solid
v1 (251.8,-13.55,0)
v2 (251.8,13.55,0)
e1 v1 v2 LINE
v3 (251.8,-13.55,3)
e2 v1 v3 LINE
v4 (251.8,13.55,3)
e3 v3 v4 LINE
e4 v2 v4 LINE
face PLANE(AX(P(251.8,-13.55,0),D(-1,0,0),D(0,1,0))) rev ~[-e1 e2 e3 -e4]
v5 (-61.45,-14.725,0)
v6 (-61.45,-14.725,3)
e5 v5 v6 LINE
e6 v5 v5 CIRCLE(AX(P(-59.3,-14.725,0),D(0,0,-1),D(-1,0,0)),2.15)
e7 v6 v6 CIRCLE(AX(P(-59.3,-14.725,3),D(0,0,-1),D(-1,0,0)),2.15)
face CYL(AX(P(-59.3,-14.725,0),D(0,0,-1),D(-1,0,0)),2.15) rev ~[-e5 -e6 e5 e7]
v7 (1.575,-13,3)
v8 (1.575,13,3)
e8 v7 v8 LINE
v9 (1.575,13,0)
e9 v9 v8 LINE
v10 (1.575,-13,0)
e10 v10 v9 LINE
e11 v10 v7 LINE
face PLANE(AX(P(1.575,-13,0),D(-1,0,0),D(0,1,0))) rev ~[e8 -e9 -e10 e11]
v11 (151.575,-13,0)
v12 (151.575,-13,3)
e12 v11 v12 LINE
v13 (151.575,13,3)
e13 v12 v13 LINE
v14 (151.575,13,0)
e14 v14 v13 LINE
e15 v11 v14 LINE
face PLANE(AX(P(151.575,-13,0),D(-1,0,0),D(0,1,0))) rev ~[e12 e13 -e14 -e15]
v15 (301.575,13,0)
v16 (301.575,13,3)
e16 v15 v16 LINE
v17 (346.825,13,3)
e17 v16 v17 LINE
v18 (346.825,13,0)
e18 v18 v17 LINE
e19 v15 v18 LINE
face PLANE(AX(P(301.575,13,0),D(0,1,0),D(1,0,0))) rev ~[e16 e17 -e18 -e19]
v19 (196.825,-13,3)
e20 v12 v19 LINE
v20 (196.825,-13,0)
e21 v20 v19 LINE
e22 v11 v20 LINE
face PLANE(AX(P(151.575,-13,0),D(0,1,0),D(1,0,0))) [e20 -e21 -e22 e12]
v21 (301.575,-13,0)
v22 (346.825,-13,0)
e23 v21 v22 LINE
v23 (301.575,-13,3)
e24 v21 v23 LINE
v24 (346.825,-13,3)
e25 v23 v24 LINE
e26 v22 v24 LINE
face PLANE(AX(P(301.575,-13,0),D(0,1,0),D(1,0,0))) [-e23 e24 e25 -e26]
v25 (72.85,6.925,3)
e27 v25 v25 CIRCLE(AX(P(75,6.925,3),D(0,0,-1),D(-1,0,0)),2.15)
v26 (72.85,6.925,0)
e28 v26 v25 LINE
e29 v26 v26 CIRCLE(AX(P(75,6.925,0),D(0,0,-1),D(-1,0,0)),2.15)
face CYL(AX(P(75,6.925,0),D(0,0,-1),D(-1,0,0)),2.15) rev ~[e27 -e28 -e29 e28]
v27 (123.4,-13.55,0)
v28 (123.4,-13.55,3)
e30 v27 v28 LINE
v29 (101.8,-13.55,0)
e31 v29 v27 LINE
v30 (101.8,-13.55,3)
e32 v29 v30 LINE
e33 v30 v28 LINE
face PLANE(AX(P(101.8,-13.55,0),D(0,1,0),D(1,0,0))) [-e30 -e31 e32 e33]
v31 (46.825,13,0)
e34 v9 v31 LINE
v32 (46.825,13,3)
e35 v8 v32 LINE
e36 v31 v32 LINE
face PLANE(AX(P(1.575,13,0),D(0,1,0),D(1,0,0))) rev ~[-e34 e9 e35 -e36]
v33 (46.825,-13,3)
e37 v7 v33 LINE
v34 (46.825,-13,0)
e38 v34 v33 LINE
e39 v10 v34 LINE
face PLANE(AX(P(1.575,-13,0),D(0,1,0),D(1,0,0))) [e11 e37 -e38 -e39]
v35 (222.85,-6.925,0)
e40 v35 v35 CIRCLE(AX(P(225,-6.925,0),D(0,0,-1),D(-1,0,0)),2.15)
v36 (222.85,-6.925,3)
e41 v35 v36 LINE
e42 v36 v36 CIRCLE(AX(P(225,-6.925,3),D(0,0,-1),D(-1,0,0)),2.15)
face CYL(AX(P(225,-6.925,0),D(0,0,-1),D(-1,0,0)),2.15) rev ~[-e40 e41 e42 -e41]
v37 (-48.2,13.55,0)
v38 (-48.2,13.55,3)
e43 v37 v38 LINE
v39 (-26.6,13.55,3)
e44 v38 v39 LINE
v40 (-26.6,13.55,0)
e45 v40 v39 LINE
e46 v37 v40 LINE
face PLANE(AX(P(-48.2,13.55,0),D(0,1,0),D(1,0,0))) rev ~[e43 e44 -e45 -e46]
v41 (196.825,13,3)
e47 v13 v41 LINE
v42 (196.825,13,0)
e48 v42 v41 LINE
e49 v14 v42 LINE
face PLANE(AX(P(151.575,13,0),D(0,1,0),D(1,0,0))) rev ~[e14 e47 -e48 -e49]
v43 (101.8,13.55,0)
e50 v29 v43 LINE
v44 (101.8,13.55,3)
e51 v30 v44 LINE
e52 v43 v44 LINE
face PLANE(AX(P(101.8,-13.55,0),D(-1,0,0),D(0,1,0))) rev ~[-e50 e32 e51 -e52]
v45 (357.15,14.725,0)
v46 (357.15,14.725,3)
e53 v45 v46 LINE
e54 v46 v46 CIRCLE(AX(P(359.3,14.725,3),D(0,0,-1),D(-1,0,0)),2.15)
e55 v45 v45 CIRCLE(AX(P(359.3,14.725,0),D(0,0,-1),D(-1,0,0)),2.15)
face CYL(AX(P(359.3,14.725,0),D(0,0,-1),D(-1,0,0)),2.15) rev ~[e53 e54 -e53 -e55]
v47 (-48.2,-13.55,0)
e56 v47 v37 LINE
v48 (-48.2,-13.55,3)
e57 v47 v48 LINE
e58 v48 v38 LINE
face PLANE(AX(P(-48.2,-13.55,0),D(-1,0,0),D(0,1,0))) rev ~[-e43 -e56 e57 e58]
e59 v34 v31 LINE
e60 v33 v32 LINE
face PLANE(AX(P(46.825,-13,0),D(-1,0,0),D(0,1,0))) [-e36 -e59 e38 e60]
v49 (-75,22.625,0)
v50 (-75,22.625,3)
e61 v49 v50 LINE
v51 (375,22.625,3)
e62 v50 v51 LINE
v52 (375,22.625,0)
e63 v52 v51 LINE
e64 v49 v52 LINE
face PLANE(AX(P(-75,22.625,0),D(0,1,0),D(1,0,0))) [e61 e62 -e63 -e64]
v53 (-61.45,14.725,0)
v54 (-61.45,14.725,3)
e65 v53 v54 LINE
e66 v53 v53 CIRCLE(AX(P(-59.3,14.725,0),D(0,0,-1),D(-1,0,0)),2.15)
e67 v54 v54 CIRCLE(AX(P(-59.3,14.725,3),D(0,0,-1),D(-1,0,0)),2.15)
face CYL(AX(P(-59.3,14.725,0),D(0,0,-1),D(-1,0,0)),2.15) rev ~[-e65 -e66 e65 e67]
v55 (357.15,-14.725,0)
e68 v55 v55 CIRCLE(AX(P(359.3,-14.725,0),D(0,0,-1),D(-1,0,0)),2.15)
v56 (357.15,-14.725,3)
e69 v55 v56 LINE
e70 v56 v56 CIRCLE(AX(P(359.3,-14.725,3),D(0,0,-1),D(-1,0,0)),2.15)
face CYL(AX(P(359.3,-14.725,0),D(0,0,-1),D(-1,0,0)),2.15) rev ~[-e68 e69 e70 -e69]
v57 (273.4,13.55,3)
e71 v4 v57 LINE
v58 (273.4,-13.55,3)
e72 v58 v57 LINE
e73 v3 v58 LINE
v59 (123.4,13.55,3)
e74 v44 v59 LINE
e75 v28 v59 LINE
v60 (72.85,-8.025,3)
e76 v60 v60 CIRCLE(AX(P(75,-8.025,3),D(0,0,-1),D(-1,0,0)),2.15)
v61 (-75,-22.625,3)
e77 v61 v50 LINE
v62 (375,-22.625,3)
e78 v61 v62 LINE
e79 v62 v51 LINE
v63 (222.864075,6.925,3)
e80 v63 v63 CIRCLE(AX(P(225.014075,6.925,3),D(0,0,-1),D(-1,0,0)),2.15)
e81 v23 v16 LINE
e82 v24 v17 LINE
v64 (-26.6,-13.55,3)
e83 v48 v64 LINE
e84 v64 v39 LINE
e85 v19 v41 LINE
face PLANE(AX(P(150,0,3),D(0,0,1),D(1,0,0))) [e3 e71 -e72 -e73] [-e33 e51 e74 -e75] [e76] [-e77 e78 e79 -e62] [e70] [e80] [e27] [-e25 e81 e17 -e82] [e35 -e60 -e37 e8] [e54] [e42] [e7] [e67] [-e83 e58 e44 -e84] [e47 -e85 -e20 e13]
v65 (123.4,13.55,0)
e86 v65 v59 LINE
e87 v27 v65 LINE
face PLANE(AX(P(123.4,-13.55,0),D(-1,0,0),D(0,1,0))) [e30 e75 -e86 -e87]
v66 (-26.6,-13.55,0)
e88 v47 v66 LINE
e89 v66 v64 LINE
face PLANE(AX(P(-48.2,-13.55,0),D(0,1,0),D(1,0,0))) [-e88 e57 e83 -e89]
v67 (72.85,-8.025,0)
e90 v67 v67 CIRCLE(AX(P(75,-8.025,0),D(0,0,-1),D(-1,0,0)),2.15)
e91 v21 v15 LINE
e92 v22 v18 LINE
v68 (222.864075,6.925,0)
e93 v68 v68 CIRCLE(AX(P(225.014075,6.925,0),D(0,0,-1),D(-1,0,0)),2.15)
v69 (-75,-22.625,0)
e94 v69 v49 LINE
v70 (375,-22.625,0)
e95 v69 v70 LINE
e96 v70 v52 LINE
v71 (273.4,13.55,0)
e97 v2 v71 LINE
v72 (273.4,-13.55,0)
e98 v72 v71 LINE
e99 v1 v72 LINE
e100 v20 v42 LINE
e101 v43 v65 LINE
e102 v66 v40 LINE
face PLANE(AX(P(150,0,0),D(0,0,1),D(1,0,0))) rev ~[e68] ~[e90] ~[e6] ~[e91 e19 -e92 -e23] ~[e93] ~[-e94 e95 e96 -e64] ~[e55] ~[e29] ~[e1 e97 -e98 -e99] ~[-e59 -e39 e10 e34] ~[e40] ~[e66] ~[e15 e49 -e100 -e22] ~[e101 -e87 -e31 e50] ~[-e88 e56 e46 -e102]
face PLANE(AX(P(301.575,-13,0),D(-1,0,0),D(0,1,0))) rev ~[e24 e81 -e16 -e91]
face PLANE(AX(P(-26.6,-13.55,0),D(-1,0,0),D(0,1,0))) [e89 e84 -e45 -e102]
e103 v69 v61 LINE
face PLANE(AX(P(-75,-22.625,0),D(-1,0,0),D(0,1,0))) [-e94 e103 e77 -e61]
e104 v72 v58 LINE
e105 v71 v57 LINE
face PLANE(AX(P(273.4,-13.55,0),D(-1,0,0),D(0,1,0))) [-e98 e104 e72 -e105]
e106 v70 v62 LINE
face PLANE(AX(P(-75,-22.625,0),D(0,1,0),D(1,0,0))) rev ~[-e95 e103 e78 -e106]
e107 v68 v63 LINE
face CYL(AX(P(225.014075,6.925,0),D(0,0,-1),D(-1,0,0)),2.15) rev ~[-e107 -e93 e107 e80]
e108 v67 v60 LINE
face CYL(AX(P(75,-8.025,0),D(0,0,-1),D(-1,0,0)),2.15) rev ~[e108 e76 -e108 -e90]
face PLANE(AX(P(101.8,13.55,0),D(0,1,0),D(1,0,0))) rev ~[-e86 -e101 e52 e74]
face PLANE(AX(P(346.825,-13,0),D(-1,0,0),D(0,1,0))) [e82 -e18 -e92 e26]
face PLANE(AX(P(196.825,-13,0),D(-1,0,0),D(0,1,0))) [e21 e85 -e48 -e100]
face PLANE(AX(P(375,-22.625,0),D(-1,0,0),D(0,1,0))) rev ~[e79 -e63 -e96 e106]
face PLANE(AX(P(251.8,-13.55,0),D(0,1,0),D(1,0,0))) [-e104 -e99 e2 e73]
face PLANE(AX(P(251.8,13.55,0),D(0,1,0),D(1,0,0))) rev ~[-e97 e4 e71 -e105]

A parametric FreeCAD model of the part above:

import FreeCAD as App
import Part
import Sketcher

V = App.Vector

doc = App.newDocument("Part")
body = doc.addObject("PartDesign::Body", "Body")

# Sketch on XY plane
sketch1 = body.newObject("Sketcher::SketchObject", "Sketch")
sketch1.AttachmentSupport = (doc.getObject("XY_Plane"), [""])
sketch1.MapMode = "FlatFace"
sketch1.addGeometry([
    Part.LineSegment(V(-75, 23, 0), V(-75, -23, 0)),
    Part.LineSegment(V(-75, -23, 0), V(375, -23, 0)),
    Part.LineSegment(V(375, -23, 0), V(375, 23, 0)),
    Part.LineSegment(V(375, 23, 0), V(-75, 23, 0)),
], False)
sketch1.addConstraint([
    Sketcher.Constraint("Coincident", 0, 2, 1, 1),
    Sketcher.Constraint("Coincident", 1, 2, 2, 1),
    Sketcher.Constraint("Coincident", 2, 2, 3, 1),
    Sketcher.Constraint("Coincident", 3, 2, 0, 1),
    Sketcher.Constraint("Vertical", 0),
    Sketcher.Constraint("Horizontal", 1),
    Sketcher.Constraint("Vertical", 2),
    Sketcher.Constraint("Horizontal", 3),
    Sketcher.Constraint("DistanceX", 1, 1, 1, 2, 450.0),
    Sketcher.Constraint("DistanceX", 0, 2, -1, 1, 75.0),
    Sketcher.Constraint("DistanceY", 0, 2, 0, 1, 45.25),
    Sketcher.Constraint("DistanceY", 0, 2, -1, 1, 22.625),
])
pad1 = body.newObject("PartDesign::Pad", "Pad")
pad1.Profile = sketch1
pad1.Length = 3

# Sketch on XY plane
sketch2 = body.newObject("Sketcher::SketchObject", "Sketch001")
sketch2.AttachmentSupport = (doc.getObject("XY_Plane"), [""])
sketch2.MapMode = "FlatFace"
sketch2.addGeometry([
    Part.LineSegment(V(-48, 14, 0), V(-48, -14, 0)),  # 0
    Part.LineSegment(V(-48, -14, 0), V(-27, -14, 0)),  # 1
    Part.LineSegment(V(-27, -14, 0), V(-27, 14, 0)),  # 2
    Part.LineSegment(V(-27, 14, 0), V(-48, 14, 0)),  # 3
    Part.LineSegment(V(152, 13, 0), V(152, -13, 0)),  # 4
    Part.LineSegment(V(152, -13, 0), V(197, -13, 0)),  # 5
    Part.LineSegment(V(197, -13, 0), V(197, 13, 0)),  # 6
    Part.LineSegment(V(197, 13, 0), V(152, 13, 0)),  # 7
    Part.LineSegment(V(2, 13, 0), V(2, -13, 0)),  # 8
    Part.LineSegment(V(2, -13, 0), V(47, -13, 0)),  # 9
    Part.LineSegment(V(47, -13, 0), V(47, 13, 0)),  # 10
    Part.LineSegment(V(47, 13, 0), V(2, 13, 0)),  # 11
    Part.LineSegment(V(102, 14, 0), V(102, -14, 0)),  # 12
    Part.LineSegment(V(102, -14, 0), V(123, -14, 0)),  # 13
    Part.LineSegment(V(123, -14, 0), V(123, 14, 0)),  # 14
    Part.LineSegment(V(123, 14, 0), V(102, 14, 0)),  # 15
    Part.LineSegment(V(302, 13, 0), V(302, -13, 0)),  # 16
    Part.LineSegment(V(302, -13, 0), V(347, -13, 0)),  # 17
    Part.LineSegment(V(347, -13, 0), V(347, 13, 0)),  # 18
    Part.LineSegment(V(347, 13, 0), V(302, 13, 0)),  # 19
    Part.LineSegment(V(252, 14, 0), V(252, -14, 0)),  # 20
    Part.LineSegment(V(252, -14, 0), V(273, -14, 0)),  # 21
    Part.LineSegment(V(273, -14, 0), V(273, 14, 0)),  # 22
    Part.LineSegment(V(273, 14, 0), V(252, 14, 0)),  # 23
], False)
sketch2.addConstraint([
    Sketcher.Constraint("Coincident", 0, 2, 1, 1),
    Sketcher.Constraint("Coincident", 1, 2, 2, 1),
    Sketcher.Constraint("Coincident", 2, 2, 3, 1),
    Sketcher.Constraint("Coincident", 3, 2, 0, 1),
    Sketcher.Constraint("Coincident", 4, 2, 5, 1),
    Sketcher.Constraint("Coincident", 5, 2, 6, 1),
    Sketcher.Constraint("Coincident", 6, 2, 7, 1),
    Sketcher.Constraint("Coincident", 7, 2, 4, 1),
    Sketcher.Constraint("Coincident", 8, 2, 9, 1),
    Sketcher.Constraint("Coincident", 9, 2, 10, 1),
    Sketcher.Constraint("Coincident", 10, 2, 11, 1),
    Sketcher.Constraint("Coincident", 11, 2, 8, 1),
    Sketcher.Constraint("Coincident", 12, 2, 13, 1),
    Sketcher.Constraint("Coincident", 13, 2, 14, 1),
    Sketcher.Constraint("Coincident", 14, 2, 15, 1),
    Sketcher.Constraint("Coincident", 15, 2, 12, 1),
    Sketcher.Constraint("Coincident", 16, 2, 17, 1),
    Sketcher.Constraint("Coincident", 17, 2, 18, 1),
    Sketcher.Constraint("Coincident", 18, 2, 19, 1),
    Sketcher.Constraint("Coincident", 19, 2, 16, 1),
    Sketcher.Constraint("Coincident", 20, 2, 21, 1),
    Sketcher.Constraint("Coincident", 21, 2, 22, 1),
    Sketcher.Constraint("Coincident", 22, 2, 23, 1),
    Sketcher.Constraint("Coincident", 23, 2, 20, 1),
    Sketcher.Constraint("Vertical", 0),
    Sketcher.Constraint("Horizontal", 1),
    Sketcher.Constraint("Vertical", 2),
    Sketcher.Constraint("Horizontal", 3),
    Sketcher.Constraint("Vertical", 4),
    Sketcher.Constraint("Horizontal", 5),
    Sketcher.Constraint("Vertical", 6),
    Sketcher.Constraint("Horizontal", 7),
    Sketcher.Constraint("Vertical", 8),
    Sketcher.Constraint("Horizontal", 9),
    Sketcher.Constraint("Vertical", 10),
    Sketcher.Constraint("Horizontal", 11),
    Sketcher.Constraint("Vertical", 12),
    Sketcher.Constraint("Horizontal", 13),
    Sketcher.Constraint("Vertical", 14),
    Sketcher.Constraint("Horizontal", 15),
    Sketcher.Constraint("Vertical", 16),
    Sketcher.Constraint("Horizontal", 17),
    Sketcher.Constraint("Vertical", 18),
    Sketcher.Constraint("Horizontal", 19),
    Sketcher.Constraint("Vertical", 20),
    Sketcher.Constraint("Horizontal", 21),
    Sketcher.Constraint("Vertical", 22),
    Sketcher.Constraint("Horizontal", 23),
    Sketcher.Constraint("Horizontal", 5, 2, 8, 2),
    Sketcher.Constraint("Horizontal", 7, 2, 10, 2),
    Sketcher.Constraint("Horizontal", 1, 2, 12, 2),
    Sketcher.Constraint("Horizontal", 3, 2, 14, 2),
    Sketcher.Constraint("Horizontal", 9, 2, 16, 2),
    Sketcher.Constraint("Horizontal", 11, 2, 18, 2),
    Sketcher.Constraint("Horizontal", 13, 2, 20, 2),
    Sketcher.Constraint("Horizontal", 15, 2, 22, 2),
    Sketcher.Constraint("Equal", 7, 9),
    Sketcher.Constraint("Equal", 3, 13),
    Sketcher.Constraint("Equal", 11, 17),
    Sketcher.Constraint("Equal", 15, 21),
    Sketcher.Constraint("DistanceY", 4, 2, 4, 1, 26.0),
    Sketcher.Constraint("DistanceX", 1, 1, 1, 2, 21.6),
    Sketcher.Constraint("DistanceY", 0, 2, 0, 1, 27.1),
    Sketcher.Constraint("DistanceY", 4, 2, -1, 1, 13.0),
    Sketcher.Constraint("DistanceX", 8, 2, 4, 2, 150.0),
    Sketcher.Constraint("DistanceX", 4, 2, 16, 2, 150.0),
    Sketcher.Constraint("DistanceX", 5, 1, 5, 2, 45.25),
    Sketcher.Constraint("DistanceX", 0, 2, -1, 1, 48.2),
    Sketcher.Constraint("DistanceX", -1, 1, 12, 2, 101.8),
    Sketcher.Constraint("DistanceX", -1, 1, 20, 2, 251.8),
    Sketcher.Constraint("DistanceY", 0, 2, -1, 1, 13.55),
    Sketcher.Constraint("DistanceX", -1, 1, 4, 2, 151.575),
])
pocket1 = body.newObject("PartDesign::Pocket", "Pocket")
pocket1.Profile = sketch2
pocket1.Length = 3
pocket1.Reversed = True

# Sketch on XY plane
sketch3 = body.newObject("Sketcher::SketchObject", "Sketch002")
sketch3.AttachmentSupport = (doc.getObject("XY_Plane"), [""])
sketch3.MapMode = "FlatFace"
sketch3.addGeometry([
    Part.Circle(V(359.3, 14.7, 0), V(0, 0, 1), 2.1),
    Part.Circle(V(359.3, -14.7, 0), V(0, 0, 1), 2.1),
    Part.Circle(V(-59.3, 14.7, 0), V(0, 0, 1), 2.1),
    Part.Circle(V(-59.3, -14.7, 0), V(0, 0, 1), 2.1),
], False)
sketch3.addConstraint([
    Sketcher.Constraint("Equal", 0, 1),
    Sketcher.Constraint("Equal", 1, 2),
    Sketcher.Constraint("Equal", 2, 3),
    Sketcher.Constraint("Symmetric", 0, 3, 1, 3, -1),
    Sketcher.Constraint("Symmetric", 2, 3, 3, 3, -1),
    Sketcher.Constraint("Horizontal", 0, 3, 2, 3),
    Sketcher.Constraint("Diameter", 0, 4.3),
    Sketcher.Constraint("DistanceX", -1, 1, 0, 3, 359.3),
    Sketcher.Constraint("DistanceX", 2, 3, -1, 1, 59.3),
    Sketcher.Constraint("DistanceY", 1, 3, 0, 3, 29.45),
])
pocket2 = body.newObject("PartDesign::Pocket", "Pocket001")
pocket2.Profile = sketch3
pocket2.Length = 5
pocket2.Reversed = True

# Sketch on XY plane
sketch4 = body.newObject("Sketcher::SketchObject", "Sketch003")
sketch4.AttachmentSupport = (doc.getObject("XY_Plane"), [""])
sketch4.MapMode = "FlatFace"
sketch4.addGeometry([
    Part.Circle(V(225, 6.9, 0), V(0, 0, 1), 2.1),
    Part.Circle(V(225, -6.9, 0), V(0, 0, 1), 2.1),
    Part.Circle(V(75, 6.9, 0), V(0, 0, 1), 2.1),
    Part.Circle(V(75, -8, 0), V(0, 0, 1), 2.1),
], False)
sketch4.addConstraint([
    Sketcher.Constraint("Equal", 0, 1),
    Sketcher.Constraint("Equal", 1, 2),
    Sketcher.Constraint("Equal", 2, 3),
    Sketcher.Constraint("Horizontal", 0, 3, 2, 3),
    Sketcher.Constraint("Vertical", 2, 3, 3, 3),
    Sketcher.Constraint("Diameter", 0, 4.3),
    Sketcher.Constraint("DistanceX", -1, 1, 1, 3, 225.0),
    Sketcher.Constraint("DistanceX", -1, 1, 2, 3, 75.0),
    Sketcher.Constraint("DistanceY", 3, 3, 1, 3, 1.1),
    Sketcher.Constraint("DistanceY", 1, 3, 0, 3, 13.85),
    Sketcher.Constraint("DistanceY", -1, 1, 0, 3, 6.925),
    Sketcher.Constraint("DistanceX", -1, 1, 0, 3, 225.014075),
])
pocket3 = body.newObject("PartDesign::Pocket", "Pocket002")
pocket3.Profile = sketch4
pocket3.Length = 5
pocket3.Reversed = True

doc.recompute()
